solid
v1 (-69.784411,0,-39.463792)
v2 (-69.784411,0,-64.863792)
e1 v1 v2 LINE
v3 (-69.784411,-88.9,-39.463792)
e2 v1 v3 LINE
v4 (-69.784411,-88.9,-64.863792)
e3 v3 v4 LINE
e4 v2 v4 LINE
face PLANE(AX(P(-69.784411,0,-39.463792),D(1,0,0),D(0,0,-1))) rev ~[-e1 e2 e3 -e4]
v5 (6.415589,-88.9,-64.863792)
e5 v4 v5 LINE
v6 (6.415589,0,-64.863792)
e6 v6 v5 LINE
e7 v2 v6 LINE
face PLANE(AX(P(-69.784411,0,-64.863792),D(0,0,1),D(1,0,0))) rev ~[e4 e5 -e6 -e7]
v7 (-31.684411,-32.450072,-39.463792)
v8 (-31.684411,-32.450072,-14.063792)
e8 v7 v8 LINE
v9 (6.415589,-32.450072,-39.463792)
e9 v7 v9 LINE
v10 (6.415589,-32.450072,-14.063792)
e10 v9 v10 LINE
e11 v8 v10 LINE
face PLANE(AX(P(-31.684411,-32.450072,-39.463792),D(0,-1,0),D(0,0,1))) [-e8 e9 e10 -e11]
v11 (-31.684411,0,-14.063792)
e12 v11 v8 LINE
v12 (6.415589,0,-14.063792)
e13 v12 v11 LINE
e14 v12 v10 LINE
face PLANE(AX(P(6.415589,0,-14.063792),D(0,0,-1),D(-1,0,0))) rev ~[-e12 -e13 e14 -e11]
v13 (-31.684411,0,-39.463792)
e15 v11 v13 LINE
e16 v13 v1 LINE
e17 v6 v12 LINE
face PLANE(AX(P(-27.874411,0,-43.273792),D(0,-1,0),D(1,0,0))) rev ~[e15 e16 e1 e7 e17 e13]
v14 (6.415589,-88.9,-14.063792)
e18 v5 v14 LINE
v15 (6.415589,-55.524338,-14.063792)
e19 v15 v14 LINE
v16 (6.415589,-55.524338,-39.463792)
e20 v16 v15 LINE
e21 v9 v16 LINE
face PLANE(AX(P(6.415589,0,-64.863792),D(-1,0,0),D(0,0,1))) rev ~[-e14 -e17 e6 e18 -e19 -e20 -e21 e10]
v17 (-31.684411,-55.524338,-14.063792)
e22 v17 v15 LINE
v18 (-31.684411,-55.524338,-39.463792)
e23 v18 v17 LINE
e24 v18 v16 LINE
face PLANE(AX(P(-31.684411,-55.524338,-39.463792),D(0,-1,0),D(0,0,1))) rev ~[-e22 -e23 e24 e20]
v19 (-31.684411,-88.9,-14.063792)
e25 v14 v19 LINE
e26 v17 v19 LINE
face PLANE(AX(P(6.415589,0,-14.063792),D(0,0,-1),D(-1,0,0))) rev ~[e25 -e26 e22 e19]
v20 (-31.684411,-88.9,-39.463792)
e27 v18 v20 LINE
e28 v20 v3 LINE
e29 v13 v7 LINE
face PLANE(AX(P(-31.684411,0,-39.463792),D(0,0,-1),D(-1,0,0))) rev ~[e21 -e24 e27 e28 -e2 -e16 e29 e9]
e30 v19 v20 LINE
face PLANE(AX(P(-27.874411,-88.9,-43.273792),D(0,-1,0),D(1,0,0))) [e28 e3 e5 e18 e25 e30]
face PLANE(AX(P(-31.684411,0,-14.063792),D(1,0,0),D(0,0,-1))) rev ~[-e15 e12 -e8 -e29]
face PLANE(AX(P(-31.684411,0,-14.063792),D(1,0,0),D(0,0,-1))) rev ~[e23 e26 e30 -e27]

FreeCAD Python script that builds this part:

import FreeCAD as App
import Part
import Sketcher
from FreeCAD import Vector
Q = App.Units.Quantity


def add_polygon(sketch, points):
    """Adds a closed chain of lines whose ends are joined by coincident constraints."""
    first, n = sketch.GeometryCount, len(points)
    for a, b in zip(points, points[1:] + points[:1]):
        sketch.addGeometry(Part.LineSegment(App.Vector(*a, 0), App.Vector(*b, 0)), False)
    for i in range(n):
        sketch.addConstraint(Sketcher.Constraint("Coincident", first + i, 2, first + (i + 1) % n, 1))

doc = App.newDocument("Part")
body = doc.addObject("PartDesign::Body", "Body")

# Sketch on XZ plane
sketch1 = body.newObject("Sketcher::SketchObject", "Sketch")
sketch1.AttachmentSupport = (doc.getObject("XZ_Plane"), [""])
sketch1.MapMode = "FlatFace"
add_polygon(sketch1, [(-70, -39), (-70, -65), (6, -65), (6, -14), (-32, -14), (-32, -39)])  # lines 0-5
sketch1.addConstraint([
    Sketcher.Constraint("Vertical", 0),
    Sketcher.Constraint("Horizontal", 1),
    Sketcher.Constraint("Vertical", 2),
    Sketcher.Constraint("Horizontal", 3),
    Sketcher.Constraint("Vertical", 4),
    Sketcher.Constraint("Horizontal", 5),
    Sketcher.Constraint("Equal", 3, 5),
    Sketcher.Constraint("Equal", 0, 4),
    Sketcher.Constraint("DistanceX", 1, 1, 1, 2, Q("3 in")),
    Sketcher.Constraint("DistanceY", 0, 2, 0, 1, Q("1 in")),
    Sketcher.Constraint("DistanceX", 0, 2, -1, 1, 69.784411),
    Sketcher.Constraint("DistanceY", 4, 2, -1, 1, 39.463792),
])
pad1 = body.newObject("PartDesign::Pad", "Pad")
pad1.Profile = sketch1
pad1.Length = Q("3.5 in")

# Sketch on YZ plane
sketch2 = body.newObject("Sketcher::SketchObject", "Sketch001")
sketch2.AttachmentSupport = (doc.getObject("YZ_Plane"), [""])
sketch2.MapMode = "FlatFace"
sketch2.AttachmentOffset = App.Placement(Vector(0, 0, -31.684411), App.Rotation())
add_polygon(sketch2, [(-32, -14), (-32, -39), (-56, -39), (-56, -14)])  # lines 0-3
sketch2.addConstraint([
    Sketcher.Constraint("Vertical", 0),
    Sketcher.Constraint("Horizontal", 1),
    Sketcher.Constraint("Vertical", 2),
    Sketcher.Constraint("Horizontal", 3),
    Sketcher.Constraint("DistanceY", 0, 2, 0, 1, Q("1 in")),
    Sketcher.Constraint("DistanceX", 1, 2, 1, 1, 23.074266),
    Sketcher.Constraint("DistanceY", 0, 2, -1, 1, 39.463792),
    Sketcher.Constraint("DistanceX", 0, 2, -1, 1, 32.450072),
])
pocket1 = body.newObject("PartDesign::Pocket", "Pocket")
pocket1.Profile = sketch2
pocket1.Type = "ThroughAll"
pocket1.Reversed = True

doc.recompute()
